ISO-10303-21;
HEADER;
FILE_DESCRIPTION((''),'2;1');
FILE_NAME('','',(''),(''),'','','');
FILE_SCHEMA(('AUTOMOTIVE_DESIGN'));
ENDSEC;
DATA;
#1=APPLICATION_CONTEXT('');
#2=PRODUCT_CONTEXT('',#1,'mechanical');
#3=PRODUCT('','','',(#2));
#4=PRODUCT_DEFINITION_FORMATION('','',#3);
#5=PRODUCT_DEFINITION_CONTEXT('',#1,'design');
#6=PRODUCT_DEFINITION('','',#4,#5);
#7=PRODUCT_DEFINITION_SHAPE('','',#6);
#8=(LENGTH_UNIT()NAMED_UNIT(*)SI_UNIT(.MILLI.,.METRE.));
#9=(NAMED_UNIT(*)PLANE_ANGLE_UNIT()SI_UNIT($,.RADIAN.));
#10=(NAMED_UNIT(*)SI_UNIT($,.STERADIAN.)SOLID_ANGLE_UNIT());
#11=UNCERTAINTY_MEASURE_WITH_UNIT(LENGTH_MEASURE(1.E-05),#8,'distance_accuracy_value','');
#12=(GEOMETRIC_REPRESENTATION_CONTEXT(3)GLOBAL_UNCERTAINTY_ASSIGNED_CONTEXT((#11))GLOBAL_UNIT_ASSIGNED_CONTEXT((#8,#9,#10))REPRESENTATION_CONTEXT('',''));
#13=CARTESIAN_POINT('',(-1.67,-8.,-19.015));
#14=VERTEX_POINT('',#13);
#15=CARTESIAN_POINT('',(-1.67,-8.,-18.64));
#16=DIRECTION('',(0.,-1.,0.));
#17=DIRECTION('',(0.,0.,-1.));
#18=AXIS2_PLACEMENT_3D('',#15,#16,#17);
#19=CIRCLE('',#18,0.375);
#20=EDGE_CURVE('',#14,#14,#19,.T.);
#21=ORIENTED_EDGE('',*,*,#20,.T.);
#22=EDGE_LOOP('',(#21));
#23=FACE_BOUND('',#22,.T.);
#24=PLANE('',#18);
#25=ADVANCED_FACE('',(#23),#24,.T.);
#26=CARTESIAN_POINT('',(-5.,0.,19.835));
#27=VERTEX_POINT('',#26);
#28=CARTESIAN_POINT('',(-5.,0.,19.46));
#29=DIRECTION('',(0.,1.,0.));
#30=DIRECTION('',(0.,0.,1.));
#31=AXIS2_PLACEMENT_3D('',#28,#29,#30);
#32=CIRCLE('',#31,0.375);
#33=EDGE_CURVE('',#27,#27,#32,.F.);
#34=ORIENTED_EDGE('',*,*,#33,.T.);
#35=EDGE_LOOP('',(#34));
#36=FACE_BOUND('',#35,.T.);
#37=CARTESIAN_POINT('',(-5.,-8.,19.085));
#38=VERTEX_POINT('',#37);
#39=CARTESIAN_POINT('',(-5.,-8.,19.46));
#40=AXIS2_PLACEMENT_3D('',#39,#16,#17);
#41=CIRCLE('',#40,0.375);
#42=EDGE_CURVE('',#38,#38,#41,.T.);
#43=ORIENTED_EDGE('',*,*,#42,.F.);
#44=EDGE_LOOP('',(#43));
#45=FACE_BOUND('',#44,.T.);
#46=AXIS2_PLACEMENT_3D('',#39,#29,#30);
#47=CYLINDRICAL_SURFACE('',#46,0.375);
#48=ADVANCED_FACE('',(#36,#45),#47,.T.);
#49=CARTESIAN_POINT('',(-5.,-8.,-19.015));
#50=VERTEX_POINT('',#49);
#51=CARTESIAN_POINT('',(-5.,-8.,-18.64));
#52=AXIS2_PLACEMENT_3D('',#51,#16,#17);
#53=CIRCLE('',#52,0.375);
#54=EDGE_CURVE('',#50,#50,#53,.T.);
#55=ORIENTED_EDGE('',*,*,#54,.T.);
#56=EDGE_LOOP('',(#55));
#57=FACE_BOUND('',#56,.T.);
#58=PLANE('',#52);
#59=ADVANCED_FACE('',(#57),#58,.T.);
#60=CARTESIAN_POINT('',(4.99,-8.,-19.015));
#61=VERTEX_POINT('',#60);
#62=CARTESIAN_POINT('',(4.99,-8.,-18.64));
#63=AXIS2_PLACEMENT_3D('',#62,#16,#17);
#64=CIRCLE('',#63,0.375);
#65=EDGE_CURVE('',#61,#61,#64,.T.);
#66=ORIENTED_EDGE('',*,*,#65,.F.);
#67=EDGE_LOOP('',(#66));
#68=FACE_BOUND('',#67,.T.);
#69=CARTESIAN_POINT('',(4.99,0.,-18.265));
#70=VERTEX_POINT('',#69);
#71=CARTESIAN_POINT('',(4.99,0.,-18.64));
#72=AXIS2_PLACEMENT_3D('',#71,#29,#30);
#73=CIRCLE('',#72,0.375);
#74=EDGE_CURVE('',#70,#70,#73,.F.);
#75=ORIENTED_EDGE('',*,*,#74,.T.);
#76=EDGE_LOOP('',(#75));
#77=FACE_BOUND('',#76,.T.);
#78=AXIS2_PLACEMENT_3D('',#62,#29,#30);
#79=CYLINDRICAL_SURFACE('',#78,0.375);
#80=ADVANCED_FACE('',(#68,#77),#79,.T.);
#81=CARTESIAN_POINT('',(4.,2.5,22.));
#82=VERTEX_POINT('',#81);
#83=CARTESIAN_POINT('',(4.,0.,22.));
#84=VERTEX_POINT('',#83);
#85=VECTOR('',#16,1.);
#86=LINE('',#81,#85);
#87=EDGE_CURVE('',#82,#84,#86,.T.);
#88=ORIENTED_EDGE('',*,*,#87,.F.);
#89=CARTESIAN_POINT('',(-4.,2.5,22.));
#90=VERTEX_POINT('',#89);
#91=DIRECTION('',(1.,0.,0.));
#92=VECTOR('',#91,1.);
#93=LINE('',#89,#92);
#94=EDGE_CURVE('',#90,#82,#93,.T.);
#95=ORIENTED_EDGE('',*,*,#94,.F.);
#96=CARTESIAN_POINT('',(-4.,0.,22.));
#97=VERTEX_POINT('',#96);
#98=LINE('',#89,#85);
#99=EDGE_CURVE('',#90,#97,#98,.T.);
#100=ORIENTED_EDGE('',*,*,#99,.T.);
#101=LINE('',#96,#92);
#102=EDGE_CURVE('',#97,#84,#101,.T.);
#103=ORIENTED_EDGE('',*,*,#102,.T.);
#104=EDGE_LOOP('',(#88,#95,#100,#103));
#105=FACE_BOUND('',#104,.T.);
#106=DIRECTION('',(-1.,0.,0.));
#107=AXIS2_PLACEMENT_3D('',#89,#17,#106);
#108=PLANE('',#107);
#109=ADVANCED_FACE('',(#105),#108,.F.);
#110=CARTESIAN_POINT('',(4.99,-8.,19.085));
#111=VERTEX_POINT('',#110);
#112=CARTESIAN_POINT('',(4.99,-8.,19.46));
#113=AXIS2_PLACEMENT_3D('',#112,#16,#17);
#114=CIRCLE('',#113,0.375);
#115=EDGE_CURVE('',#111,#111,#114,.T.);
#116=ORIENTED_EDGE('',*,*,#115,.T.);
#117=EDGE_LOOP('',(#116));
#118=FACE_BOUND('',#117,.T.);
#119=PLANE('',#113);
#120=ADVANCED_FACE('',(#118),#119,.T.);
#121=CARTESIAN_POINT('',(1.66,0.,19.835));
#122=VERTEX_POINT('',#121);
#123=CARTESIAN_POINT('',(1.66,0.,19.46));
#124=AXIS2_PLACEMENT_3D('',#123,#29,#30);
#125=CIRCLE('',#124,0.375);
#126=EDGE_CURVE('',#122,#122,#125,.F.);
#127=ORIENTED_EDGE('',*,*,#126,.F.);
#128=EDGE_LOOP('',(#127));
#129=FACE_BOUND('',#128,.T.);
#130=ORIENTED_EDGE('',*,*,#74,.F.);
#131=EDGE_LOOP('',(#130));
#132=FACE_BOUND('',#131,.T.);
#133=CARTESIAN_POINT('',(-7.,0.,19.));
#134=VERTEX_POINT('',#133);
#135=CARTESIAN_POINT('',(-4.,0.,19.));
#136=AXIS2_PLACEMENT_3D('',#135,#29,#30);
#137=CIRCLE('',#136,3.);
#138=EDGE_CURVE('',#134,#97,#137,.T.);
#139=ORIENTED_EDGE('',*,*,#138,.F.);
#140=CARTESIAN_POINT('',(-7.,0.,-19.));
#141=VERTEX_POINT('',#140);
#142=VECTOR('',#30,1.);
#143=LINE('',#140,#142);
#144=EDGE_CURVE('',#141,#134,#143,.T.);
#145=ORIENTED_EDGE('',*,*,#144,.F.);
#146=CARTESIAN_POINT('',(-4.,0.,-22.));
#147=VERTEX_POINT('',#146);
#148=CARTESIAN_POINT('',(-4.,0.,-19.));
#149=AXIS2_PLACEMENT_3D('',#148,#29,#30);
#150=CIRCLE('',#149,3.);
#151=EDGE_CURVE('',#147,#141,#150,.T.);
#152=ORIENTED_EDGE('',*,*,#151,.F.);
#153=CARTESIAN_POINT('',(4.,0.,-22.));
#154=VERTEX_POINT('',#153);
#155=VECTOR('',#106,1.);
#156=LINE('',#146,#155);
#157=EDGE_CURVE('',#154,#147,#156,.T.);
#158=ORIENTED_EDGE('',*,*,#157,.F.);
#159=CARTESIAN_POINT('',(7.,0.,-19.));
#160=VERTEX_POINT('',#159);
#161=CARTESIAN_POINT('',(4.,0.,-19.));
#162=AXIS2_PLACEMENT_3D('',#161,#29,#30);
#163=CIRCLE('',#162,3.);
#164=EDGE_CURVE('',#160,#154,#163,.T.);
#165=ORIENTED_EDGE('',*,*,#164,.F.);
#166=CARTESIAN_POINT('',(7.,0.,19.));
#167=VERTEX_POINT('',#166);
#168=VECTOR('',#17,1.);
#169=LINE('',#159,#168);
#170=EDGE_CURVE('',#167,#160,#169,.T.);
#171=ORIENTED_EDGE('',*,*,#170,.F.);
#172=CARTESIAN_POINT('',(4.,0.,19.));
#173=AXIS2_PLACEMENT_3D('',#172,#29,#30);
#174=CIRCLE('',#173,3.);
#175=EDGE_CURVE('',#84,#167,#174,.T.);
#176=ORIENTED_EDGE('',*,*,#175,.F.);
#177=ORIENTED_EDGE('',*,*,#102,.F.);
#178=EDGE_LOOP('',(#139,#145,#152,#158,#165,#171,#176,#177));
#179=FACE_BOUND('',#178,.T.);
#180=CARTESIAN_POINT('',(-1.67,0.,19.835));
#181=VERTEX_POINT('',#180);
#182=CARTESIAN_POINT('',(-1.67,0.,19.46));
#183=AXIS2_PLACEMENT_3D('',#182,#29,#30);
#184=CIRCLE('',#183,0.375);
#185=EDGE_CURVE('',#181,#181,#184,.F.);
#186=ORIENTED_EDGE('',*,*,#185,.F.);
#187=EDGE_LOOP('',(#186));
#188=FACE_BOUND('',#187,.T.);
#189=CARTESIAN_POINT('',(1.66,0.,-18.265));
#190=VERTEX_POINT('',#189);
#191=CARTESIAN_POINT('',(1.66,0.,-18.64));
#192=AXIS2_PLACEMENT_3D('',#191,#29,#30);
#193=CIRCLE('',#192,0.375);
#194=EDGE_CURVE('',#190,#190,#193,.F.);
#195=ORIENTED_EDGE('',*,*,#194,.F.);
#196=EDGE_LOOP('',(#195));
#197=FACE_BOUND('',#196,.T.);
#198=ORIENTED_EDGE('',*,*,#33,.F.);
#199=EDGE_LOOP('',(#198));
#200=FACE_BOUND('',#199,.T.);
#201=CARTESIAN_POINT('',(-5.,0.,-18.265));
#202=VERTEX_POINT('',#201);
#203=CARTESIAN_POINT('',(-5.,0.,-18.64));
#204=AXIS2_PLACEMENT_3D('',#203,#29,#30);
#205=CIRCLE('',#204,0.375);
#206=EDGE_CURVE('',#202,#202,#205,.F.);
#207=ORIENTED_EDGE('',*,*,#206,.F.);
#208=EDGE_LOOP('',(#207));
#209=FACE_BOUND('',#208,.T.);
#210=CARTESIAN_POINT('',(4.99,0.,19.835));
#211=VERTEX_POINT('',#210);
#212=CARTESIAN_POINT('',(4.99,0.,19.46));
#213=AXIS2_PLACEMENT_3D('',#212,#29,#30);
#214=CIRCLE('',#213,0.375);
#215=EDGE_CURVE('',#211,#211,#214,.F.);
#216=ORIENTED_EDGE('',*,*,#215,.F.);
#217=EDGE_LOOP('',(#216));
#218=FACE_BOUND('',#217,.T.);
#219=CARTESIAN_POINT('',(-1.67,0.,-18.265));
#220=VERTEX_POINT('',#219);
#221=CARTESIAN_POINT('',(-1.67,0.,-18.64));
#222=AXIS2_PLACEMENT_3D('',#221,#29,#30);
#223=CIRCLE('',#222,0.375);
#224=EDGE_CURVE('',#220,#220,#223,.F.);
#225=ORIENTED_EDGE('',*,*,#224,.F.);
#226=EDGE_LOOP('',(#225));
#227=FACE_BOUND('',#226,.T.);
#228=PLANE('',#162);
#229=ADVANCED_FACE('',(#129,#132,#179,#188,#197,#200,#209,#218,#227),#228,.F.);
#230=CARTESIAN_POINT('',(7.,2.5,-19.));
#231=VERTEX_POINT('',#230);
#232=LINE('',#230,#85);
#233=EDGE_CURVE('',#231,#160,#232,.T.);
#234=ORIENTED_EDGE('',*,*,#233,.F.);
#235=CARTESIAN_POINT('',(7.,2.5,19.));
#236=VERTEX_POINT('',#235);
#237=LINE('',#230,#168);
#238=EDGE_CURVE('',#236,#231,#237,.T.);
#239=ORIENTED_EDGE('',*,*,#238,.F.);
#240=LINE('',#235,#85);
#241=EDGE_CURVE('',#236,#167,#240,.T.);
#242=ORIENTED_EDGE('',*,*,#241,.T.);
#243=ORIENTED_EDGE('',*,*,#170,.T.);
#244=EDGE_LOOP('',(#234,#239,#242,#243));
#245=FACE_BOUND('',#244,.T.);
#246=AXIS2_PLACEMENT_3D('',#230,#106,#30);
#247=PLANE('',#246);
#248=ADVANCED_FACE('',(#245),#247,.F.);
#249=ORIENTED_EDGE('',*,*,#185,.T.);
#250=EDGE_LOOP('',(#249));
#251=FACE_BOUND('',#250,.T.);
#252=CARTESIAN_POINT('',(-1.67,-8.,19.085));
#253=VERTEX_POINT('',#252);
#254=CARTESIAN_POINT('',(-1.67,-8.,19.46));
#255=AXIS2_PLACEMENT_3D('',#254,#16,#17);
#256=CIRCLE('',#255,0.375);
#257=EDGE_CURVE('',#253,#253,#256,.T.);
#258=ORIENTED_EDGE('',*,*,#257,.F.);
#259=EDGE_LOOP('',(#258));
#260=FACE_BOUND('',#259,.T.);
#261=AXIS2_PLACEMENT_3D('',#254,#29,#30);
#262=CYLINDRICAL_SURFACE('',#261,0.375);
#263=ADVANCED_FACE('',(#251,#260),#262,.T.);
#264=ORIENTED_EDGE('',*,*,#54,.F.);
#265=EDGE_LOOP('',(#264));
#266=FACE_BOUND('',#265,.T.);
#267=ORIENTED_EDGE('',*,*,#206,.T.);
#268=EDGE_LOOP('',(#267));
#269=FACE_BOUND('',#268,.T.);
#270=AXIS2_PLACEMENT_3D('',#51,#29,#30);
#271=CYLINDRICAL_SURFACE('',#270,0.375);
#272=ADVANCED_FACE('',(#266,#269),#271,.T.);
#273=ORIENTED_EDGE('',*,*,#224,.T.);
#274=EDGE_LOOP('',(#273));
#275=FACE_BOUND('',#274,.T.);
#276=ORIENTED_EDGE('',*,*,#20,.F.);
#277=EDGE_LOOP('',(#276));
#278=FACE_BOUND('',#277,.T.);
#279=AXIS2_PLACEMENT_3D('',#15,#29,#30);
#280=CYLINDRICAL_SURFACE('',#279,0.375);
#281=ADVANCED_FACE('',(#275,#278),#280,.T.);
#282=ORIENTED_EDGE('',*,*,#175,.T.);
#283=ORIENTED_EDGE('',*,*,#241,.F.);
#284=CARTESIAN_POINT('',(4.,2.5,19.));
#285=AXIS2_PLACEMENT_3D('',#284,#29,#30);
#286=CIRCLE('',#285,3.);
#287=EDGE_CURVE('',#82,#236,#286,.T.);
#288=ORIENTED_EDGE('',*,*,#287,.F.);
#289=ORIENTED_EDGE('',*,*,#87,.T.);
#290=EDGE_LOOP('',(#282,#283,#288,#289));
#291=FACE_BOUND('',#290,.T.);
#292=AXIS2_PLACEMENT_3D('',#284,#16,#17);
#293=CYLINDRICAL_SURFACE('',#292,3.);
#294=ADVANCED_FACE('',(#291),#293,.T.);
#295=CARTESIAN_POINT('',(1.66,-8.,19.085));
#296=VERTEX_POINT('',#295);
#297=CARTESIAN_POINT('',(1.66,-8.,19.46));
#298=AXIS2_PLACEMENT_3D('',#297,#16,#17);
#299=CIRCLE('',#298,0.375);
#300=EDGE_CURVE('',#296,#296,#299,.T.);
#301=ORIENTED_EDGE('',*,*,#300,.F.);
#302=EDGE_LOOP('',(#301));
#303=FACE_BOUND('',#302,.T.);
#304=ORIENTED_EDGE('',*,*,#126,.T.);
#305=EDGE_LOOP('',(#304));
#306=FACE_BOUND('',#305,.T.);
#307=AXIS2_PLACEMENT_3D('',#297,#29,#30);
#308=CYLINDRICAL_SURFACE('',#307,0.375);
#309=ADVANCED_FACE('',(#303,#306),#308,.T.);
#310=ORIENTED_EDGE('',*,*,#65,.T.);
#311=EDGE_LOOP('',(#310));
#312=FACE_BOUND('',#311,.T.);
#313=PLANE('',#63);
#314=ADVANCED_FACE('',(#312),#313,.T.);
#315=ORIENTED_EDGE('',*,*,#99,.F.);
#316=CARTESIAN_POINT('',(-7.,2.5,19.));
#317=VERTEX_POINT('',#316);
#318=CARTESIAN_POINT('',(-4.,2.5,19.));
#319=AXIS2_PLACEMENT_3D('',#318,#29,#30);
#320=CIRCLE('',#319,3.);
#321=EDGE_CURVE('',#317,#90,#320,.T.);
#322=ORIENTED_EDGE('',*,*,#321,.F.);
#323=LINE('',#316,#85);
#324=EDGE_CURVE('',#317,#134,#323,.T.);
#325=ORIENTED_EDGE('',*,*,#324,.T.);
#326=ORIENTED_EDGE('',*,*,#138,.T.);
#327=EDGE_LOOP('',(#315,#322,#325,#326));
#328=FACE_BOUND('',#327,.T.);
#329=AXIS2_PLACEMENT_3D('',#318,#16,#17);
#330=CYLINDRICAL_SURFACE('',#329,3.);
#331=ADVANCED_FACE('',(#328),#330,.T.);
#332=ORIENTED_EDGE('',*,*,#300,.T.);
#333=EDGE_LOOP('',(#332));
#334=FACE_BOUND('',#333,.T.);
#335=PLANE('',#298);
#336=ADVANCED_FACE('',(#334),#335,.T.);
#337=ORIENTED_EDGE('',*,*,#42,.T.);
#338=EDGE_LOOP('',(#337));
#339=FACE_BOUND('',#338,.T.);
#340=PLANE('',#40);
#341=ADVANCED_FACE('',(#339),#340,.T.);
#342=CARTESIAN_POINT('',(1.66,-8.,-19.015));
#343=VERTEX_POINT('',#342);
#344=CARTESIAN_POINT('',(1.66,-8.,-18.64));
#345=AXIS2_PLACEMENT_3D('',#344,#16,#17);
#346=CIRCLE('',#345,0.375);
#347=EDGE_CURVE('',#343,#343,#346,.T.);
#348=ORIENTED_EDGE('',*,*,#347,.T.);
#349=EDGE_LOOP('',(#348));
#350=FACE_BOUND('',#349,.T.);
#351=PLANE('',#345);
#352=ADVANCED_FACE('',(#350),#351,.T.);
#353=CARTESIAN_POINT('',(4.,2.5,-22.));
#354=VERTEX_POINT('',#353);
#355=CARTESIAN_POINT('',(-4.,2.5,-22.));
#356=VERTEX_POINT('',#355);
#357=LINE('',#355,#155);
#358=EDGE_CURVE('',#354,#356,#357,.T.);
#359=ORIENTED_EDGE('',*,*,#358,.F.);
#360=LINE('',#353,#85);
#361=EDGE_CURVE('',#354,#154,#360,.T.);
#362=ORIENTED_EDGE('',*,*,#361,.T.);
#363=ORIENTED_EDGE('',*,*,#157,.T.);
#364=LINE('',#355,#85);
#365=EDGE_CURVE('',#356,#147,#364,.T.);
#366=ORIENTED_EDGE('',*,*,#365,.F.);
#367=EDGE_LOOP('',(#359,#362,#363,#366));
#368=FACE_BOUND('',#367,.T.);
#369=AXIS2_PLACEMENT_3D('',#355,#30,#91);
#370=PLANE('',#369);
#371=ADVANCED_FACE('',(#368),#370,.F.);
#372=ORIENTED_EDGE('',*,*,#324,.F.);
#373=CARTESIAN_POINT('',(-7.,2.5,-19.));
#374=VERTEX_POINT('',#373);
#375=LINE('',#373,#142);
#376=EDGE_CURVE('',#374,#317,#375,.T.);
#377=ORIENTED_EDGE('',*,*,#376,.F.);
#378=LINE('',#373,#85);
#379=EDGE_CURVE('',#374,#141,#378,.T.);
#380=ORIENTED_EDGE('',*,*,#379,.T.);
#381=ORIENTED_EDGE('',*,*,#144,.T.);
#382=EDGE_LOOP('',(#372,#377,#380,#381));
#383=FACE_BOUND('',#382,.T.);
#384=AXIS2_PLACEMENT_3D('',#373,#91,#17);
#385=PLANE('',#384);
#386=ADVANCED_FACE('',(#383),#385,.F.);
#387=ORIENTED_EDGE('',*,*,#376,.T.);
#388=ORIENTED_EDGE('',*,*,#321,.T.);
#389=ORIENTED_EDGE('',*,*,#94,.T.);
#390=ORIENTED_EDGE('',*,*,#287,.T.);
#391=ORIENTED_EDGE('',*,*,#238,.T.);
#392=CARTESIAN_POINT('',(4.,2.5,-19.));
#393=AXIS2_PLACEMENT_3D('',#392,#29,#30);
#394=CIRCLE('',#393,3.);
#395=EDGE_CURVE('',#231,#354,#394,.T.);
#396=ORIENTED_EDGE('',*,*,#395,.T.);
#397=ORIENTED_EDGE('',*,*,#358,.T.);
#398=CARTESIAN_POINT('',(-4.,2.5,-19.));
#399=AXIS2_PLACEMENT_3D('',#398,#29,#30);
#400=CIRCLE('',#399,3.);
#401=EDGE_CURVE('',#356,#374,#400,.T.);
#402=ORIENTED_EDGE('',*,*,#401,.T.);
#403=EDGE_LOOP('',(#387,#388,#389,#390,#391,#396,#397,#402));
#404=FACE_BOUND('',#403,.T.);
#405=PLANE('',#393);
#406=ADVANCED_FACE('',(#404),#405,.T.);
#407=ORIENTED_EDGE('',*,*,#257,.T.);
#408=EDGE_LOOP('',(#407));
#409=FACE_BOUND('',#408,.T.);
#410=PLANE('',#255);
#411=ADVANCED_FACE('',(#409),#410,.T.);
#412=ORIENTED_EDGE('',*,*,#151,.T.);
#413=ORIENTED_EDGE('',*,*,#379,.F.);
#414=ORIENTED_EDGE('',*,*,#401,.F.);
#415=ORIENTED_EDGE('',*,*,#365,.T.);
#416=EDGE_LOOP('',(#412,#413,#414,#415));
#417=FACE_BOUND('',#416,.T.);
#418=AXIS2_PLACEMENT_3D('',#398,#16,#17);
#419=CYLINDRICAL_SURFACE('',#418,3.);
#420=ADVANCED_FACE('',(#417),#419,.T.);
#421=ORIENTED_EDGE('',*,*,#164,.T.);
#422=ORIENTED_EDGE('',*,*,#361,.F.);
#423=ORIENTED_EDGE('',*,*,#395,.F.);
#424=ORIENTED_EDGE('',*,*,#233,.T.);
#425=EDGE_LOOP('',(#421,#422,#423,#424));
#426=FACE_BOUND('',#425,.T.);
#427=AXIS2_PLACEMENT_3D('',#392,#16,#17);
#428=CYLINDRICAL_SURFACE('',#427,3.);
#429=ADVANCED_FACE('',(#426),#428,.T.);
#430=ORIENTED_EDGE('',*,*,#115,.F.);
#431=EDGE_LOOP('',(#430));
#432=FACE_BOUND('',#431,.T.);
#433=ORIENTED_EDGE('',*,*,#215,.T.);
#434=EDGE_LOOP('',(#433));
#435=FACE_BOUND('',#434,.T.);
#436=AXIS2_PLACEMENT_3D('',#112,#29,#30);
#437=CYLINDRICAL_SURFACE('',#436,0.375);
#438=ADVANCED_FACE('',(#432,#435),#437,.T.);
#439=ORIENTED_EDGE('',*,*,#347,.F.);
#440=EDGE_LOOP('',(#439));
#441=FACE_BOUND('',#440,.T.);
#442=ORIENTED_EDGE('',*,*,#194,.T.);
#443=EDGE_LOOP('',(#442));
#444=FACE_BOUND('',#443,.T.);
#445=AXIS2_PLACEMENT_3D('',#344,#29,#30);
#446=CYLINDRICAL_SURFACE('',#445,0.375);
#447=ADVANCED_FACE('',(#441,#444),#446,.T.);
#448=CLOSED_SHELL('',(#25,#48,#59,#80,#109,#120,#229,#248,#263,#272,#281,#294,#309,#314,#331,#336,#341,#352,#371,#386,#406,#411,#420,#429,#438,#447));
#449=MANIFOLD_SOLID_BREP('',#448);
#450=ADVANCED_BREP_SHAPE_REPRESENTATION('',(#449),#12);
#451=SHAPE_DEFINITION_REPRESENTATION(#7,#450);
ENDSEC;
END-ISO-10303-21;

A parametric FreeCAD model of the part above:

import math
import FreeCAD as App
import Part
import Sketcher

doc = App.newDocument("Part")
body = doc.addObject("PartDesign::Body", "Body")

# Sketch on XZ plane
sketch1 = doc.addObject("Sketcher::SketchObject", "Sketch")
body.addObject(sketch1)
sketch1.AttachmentSupport = (doc.XZ_Plane, [""])
sketch1.MapMode = "FlatFace"
sketch1.addGeometry([
    Part.LineSegment(App.Vector(4, -22, 0), App.Vector(-4, -22, 0)),  # 0
    Part.ArcOfCircle(Part.Circle(App.Vector(-4, -19, 0), App.Vector(0, 0, 1), 3), math.radians(180), math.radians(270)),  # 1
    Part.LineSegment(App.Vector(-7, -19, 0), App.Vector(-7, 19, 0)),  # 2
    Part.ArcOfCircle(Part.Circle(App.Vector(-4, 19, 0), App.Vector(0, 0, 1), 3), math.radians(90), math.radians(180)),  # 3
    Part.LineSegment(App.Vector(-4, 22, 0), App.Vector(4, 22, 0)),  # 4
    Part.ArcOfCircle(Part.Circle(App.Vector(4, 19, 0), App.Vector(0, 0, 1), 3), math.radians(0), math.radians(90)),  # 5
    Part.LineSegment(App.Vector(7, 19, 0), App.Vector(7, -19, 0)),  # 6
    Part.ArcOfCircle(Part.Circle(App.Vector(4, -19, 0), App.Vector(0, 0, 1), 3), math.radians(-90), math.radians(0)),  # 7
], False)
sketch1.addConstraint([
    Sketcher.Constraint("Tangent", 0, 2, 1, 2),
    Sketcher.Constraint("Tangent", 1, 1, 2, 1),
    Sketcher.Constraint("Tangent", 2, 2, 3, 2),
    Sketcher.Constraint("Tangent", 3, 1, 4, 1),
    Sketcher.Constraint("Tangent", 4, 2, 5, 2),
    Sketcher.Constraint("Tangent", 5, 1, 6, 1),
    Sketcher.Constraint("Tangent", 6, 2, 7, 2),
    Sketcher.Constraint("Tangent", 7, 1, 0, 1),
    Sketcher.Constraint("Horizontal", 0),
    Sketcher.Constraint("Vertical", 2),
    Sketcher.Constraint("Horizontal", 4),
    Sketcher.Constraint("Vertical", 6),
    Sketcher.Constraint("Equal", 1, 3),
    Sketcher.Constraint("Equal", 3, 5),
    Sketcher.Constraint("Equal", 5, 7),
    Sketcher.Constraint("Symmetric", 1, 3, 5, 3, -1, 1),
    Sketcher.Constraint("Radius", 1, 3.0),
    Sketcher.Constraint("DistanceX", 0, 2, 0, 1, 8.0),
    Sketcher.Constraint("DistanceY", 2, 1, 2, 2, 38.0),
])
pad1 = doc.addObject("PartDesign::Pad", "Pad")
body.addObject(pad1)
pad1.Profile = sketch1
pad1.Length = 2.5
pad1.Reversed = True

# Sketch on XZ plane
sketch2 = doc.addObject("Sketcher::SketchObject", "Sketch001")
body.addObject(sketch2)
sketch2.AttachmentSupport = (doc.XZ_Plane, [""])
sketch2.MapMode = "FlatFace"
sketch2.addGeometry([
    Part.Circle(App.Vector(-5, 19.46, 0), App.Vector(0, 0, 1), 0.38),
    Part.Circle(App.Vector(-1.67, 19.46, 0), App.Vector(0, 0, 1), 0.38),
    Part.Circle(App.Vector(1.66, 19.46, 0), App.Vector(0, 0, 1), 0.38),
    Part.Circle(App.Vector(4.99, 19.46, 0), App.Vector(0, 0, 1), 0.38),
], False)
sketch2.addConstraint([
    Sketcher.Constraint("Equal", 0, 1),
    Sketcher.Constraint("Equal", 1, 2),
    Sketcher.Constraint("Equal", 2, 3),
    Sketcher.Constraint("Horizontal", 0, 3, 1, 3),
    Sketcher.Constraint("Horizontal", 1, 3, 2, 3),
    Sketcher.Constraint("Horizontal", 2, 3, 3, 3),
    Sketcher.Constraint("Diameter", 0, 0.75),
    Sketcher.Constraint("DistanceX", 0, 3, -1, 1, 5.0),
    Sketcher.Constraint("DistanceY", -1, 1, 0, 3, 19.46),
    Sketcher.Constraint("DistanceX", 1, 3, -1, 1, 1.67),
    Sketcher.Constraint("DistanceX", -1, 1, 2, 3, 1.66),
    Sketcher.Constraint("DistanceX", -1, 1, 3, 3, 4.99),
])
pad2 = doc.addObject("PartDesign::Pad", "Pad001")
body.addObject(pad2)
pad2.Profile = sketch2
pad2.Length = 8
doc.recompute()

linearpattern = doc.addObject("PartDesign::LinearPattern", "LinearPattern")
body.addObject(linearpattern)
linearpattern.Originals = [pad2]
linearpattern.Direction = (doc.Z_Axis, [""])
linearpattern.Mode = "offset"
linearpattern.Offset = 38.1
linearpattern.Occurrences = 2
linearpattern.Reversed = True
body.Tip = linearpattern

doc.recompute()
